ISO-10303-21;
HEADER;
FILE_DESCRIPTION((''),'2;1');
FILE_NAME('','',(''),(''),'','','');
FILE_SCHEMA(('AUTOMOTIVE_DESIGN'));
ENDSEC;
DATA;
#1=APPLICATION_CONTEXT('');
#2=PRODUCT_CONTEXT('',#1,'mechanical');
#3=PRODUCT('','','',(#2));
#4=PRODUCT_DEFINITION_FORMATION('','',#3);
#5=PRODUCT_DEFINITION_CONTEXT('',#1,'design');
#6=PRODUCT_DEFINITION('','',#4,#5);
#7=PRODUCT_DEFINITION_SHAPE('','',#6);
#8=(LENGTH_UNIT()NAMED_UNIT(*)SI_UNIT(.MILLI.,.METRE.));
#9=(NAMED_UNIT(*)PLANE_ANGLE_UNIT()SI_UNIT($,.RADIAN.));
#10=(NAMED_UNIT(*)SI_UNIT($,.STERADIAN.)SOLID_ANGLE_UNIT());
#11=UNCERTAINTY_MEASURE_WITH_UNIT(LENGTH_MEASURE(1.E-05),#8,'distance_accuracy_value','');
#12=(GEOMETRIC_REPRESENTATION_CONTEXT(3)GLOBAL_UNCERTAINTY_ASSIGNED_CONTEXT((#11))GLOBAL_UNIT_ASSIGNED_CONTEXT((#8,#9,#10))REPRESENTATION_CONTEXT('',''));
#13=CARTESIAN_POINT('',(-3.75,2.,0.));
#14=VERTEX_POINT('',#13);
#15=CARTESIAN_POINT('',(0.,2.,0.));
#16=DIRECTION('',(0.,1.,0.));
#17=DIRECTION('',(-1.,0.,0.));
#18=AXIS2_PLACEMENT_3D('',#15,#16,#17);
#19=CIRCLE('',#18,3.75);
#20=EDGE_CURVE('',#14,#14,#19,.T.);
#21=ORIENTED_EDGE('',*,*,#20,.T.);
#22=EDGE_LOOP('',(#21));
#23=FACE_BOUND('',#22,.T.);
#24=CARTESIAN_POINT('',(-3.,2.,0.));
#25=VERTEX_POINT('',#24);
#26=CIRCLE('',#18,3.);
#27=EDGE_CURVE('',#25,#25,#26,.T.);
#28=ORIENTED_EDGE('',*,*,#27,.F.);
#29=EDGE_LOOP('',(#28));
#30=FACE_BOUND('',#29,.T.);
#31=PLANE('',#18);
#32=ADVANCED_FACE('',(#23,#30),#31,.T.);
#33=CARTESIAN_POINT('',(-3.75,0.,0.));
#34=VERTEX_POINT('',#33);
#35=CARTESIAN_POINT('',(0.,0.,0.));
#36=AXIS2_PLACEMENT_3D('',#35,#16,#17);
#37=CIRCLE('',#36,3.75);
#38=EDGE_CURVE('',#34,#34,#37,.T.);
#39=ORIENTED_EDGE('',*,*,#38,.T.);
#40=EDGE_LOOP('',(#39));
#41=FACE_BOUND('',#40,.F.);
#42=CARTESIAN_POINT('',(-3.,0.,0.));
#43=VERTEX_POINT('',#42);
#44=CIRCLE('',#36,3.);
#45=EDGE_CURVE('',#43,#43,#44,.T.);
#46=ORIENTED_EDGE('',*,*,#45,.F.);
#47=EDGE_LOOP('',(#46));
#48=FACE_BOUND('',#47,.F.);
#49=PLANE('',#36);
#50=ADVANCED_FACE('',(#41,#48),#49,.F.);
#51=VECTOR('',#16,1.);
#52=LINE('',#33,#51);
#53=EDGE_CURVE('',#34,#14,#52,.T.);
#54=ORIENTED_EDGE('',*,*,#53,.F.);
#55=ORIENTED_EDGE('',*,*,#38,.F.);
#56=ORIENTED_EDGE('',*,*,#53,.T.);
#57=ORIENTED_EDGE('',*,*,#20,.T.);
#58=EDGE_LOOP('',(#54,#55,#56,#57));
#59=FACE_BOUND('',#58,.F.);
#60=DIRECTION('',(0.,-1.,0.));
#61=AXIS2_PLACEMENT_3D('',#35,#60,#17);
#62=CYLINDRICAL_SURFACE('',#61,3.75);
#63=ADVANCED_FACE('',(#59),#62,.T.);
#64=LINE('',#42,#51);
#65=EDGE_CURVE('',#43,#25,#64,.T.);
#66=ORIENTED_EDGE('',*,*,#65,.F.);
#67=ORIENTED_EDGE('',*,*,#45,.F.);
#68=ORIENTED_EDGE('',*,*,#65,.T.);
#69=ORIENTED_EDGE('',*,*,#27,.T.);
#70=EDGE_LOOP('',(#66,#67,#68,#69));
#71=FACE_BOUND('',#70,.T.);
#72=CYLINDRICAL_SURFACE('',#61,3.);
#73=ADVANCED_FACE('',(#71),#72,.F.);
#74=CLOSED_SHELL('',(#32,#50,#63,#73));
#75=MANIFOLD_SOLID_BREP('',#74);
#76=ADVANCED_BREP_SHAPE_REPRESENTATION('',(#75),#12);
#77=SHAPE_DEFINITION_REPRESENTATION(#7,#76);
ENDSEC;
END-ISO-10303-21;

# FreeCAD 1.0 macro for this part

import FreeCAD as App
import Part
import Sketcher
Q = App.Units.Quantity

doc = App.newDocument("Part")
body = doc.addObject("PartDesign::Body", "Body")

# Sketch on XZ plane
sketch1 = body.newObject("Sketcher::SketchObject", "Sketch")
sketch1.AttachmentSupport = (doc.getObject("XZ_Plane"), [""])
sketch1.MapMode = "FlatFace"
sketch1.addGeometry([
    Part.Circle(App.Vector(0, 0, 0), App.Vector(0, 0, 1), 3.8),
    Part.Circle(App.Vector(0, 0, 0), App.Vector(0, 0, 1), 3),
], False)
sketch1.addConstraint([
    Sketcher.Constraint("Coincident", 0, 3, -1, 1),
    Sketcher.Constraint("Coincident", 1, 3, -1, 1),
    Sketcher.Constraint("Diameter", 1, Q("6 mm")),
    Sketcher.Constraint("Diameter", 0, Q("7.5 mm")),
])
pad1 = body.newObject("PartDesign::Pad", "Pad")
pad1.Profile = sketch1
pad1.Length = 2
pad1.Reversed = True

doc.recompute()
